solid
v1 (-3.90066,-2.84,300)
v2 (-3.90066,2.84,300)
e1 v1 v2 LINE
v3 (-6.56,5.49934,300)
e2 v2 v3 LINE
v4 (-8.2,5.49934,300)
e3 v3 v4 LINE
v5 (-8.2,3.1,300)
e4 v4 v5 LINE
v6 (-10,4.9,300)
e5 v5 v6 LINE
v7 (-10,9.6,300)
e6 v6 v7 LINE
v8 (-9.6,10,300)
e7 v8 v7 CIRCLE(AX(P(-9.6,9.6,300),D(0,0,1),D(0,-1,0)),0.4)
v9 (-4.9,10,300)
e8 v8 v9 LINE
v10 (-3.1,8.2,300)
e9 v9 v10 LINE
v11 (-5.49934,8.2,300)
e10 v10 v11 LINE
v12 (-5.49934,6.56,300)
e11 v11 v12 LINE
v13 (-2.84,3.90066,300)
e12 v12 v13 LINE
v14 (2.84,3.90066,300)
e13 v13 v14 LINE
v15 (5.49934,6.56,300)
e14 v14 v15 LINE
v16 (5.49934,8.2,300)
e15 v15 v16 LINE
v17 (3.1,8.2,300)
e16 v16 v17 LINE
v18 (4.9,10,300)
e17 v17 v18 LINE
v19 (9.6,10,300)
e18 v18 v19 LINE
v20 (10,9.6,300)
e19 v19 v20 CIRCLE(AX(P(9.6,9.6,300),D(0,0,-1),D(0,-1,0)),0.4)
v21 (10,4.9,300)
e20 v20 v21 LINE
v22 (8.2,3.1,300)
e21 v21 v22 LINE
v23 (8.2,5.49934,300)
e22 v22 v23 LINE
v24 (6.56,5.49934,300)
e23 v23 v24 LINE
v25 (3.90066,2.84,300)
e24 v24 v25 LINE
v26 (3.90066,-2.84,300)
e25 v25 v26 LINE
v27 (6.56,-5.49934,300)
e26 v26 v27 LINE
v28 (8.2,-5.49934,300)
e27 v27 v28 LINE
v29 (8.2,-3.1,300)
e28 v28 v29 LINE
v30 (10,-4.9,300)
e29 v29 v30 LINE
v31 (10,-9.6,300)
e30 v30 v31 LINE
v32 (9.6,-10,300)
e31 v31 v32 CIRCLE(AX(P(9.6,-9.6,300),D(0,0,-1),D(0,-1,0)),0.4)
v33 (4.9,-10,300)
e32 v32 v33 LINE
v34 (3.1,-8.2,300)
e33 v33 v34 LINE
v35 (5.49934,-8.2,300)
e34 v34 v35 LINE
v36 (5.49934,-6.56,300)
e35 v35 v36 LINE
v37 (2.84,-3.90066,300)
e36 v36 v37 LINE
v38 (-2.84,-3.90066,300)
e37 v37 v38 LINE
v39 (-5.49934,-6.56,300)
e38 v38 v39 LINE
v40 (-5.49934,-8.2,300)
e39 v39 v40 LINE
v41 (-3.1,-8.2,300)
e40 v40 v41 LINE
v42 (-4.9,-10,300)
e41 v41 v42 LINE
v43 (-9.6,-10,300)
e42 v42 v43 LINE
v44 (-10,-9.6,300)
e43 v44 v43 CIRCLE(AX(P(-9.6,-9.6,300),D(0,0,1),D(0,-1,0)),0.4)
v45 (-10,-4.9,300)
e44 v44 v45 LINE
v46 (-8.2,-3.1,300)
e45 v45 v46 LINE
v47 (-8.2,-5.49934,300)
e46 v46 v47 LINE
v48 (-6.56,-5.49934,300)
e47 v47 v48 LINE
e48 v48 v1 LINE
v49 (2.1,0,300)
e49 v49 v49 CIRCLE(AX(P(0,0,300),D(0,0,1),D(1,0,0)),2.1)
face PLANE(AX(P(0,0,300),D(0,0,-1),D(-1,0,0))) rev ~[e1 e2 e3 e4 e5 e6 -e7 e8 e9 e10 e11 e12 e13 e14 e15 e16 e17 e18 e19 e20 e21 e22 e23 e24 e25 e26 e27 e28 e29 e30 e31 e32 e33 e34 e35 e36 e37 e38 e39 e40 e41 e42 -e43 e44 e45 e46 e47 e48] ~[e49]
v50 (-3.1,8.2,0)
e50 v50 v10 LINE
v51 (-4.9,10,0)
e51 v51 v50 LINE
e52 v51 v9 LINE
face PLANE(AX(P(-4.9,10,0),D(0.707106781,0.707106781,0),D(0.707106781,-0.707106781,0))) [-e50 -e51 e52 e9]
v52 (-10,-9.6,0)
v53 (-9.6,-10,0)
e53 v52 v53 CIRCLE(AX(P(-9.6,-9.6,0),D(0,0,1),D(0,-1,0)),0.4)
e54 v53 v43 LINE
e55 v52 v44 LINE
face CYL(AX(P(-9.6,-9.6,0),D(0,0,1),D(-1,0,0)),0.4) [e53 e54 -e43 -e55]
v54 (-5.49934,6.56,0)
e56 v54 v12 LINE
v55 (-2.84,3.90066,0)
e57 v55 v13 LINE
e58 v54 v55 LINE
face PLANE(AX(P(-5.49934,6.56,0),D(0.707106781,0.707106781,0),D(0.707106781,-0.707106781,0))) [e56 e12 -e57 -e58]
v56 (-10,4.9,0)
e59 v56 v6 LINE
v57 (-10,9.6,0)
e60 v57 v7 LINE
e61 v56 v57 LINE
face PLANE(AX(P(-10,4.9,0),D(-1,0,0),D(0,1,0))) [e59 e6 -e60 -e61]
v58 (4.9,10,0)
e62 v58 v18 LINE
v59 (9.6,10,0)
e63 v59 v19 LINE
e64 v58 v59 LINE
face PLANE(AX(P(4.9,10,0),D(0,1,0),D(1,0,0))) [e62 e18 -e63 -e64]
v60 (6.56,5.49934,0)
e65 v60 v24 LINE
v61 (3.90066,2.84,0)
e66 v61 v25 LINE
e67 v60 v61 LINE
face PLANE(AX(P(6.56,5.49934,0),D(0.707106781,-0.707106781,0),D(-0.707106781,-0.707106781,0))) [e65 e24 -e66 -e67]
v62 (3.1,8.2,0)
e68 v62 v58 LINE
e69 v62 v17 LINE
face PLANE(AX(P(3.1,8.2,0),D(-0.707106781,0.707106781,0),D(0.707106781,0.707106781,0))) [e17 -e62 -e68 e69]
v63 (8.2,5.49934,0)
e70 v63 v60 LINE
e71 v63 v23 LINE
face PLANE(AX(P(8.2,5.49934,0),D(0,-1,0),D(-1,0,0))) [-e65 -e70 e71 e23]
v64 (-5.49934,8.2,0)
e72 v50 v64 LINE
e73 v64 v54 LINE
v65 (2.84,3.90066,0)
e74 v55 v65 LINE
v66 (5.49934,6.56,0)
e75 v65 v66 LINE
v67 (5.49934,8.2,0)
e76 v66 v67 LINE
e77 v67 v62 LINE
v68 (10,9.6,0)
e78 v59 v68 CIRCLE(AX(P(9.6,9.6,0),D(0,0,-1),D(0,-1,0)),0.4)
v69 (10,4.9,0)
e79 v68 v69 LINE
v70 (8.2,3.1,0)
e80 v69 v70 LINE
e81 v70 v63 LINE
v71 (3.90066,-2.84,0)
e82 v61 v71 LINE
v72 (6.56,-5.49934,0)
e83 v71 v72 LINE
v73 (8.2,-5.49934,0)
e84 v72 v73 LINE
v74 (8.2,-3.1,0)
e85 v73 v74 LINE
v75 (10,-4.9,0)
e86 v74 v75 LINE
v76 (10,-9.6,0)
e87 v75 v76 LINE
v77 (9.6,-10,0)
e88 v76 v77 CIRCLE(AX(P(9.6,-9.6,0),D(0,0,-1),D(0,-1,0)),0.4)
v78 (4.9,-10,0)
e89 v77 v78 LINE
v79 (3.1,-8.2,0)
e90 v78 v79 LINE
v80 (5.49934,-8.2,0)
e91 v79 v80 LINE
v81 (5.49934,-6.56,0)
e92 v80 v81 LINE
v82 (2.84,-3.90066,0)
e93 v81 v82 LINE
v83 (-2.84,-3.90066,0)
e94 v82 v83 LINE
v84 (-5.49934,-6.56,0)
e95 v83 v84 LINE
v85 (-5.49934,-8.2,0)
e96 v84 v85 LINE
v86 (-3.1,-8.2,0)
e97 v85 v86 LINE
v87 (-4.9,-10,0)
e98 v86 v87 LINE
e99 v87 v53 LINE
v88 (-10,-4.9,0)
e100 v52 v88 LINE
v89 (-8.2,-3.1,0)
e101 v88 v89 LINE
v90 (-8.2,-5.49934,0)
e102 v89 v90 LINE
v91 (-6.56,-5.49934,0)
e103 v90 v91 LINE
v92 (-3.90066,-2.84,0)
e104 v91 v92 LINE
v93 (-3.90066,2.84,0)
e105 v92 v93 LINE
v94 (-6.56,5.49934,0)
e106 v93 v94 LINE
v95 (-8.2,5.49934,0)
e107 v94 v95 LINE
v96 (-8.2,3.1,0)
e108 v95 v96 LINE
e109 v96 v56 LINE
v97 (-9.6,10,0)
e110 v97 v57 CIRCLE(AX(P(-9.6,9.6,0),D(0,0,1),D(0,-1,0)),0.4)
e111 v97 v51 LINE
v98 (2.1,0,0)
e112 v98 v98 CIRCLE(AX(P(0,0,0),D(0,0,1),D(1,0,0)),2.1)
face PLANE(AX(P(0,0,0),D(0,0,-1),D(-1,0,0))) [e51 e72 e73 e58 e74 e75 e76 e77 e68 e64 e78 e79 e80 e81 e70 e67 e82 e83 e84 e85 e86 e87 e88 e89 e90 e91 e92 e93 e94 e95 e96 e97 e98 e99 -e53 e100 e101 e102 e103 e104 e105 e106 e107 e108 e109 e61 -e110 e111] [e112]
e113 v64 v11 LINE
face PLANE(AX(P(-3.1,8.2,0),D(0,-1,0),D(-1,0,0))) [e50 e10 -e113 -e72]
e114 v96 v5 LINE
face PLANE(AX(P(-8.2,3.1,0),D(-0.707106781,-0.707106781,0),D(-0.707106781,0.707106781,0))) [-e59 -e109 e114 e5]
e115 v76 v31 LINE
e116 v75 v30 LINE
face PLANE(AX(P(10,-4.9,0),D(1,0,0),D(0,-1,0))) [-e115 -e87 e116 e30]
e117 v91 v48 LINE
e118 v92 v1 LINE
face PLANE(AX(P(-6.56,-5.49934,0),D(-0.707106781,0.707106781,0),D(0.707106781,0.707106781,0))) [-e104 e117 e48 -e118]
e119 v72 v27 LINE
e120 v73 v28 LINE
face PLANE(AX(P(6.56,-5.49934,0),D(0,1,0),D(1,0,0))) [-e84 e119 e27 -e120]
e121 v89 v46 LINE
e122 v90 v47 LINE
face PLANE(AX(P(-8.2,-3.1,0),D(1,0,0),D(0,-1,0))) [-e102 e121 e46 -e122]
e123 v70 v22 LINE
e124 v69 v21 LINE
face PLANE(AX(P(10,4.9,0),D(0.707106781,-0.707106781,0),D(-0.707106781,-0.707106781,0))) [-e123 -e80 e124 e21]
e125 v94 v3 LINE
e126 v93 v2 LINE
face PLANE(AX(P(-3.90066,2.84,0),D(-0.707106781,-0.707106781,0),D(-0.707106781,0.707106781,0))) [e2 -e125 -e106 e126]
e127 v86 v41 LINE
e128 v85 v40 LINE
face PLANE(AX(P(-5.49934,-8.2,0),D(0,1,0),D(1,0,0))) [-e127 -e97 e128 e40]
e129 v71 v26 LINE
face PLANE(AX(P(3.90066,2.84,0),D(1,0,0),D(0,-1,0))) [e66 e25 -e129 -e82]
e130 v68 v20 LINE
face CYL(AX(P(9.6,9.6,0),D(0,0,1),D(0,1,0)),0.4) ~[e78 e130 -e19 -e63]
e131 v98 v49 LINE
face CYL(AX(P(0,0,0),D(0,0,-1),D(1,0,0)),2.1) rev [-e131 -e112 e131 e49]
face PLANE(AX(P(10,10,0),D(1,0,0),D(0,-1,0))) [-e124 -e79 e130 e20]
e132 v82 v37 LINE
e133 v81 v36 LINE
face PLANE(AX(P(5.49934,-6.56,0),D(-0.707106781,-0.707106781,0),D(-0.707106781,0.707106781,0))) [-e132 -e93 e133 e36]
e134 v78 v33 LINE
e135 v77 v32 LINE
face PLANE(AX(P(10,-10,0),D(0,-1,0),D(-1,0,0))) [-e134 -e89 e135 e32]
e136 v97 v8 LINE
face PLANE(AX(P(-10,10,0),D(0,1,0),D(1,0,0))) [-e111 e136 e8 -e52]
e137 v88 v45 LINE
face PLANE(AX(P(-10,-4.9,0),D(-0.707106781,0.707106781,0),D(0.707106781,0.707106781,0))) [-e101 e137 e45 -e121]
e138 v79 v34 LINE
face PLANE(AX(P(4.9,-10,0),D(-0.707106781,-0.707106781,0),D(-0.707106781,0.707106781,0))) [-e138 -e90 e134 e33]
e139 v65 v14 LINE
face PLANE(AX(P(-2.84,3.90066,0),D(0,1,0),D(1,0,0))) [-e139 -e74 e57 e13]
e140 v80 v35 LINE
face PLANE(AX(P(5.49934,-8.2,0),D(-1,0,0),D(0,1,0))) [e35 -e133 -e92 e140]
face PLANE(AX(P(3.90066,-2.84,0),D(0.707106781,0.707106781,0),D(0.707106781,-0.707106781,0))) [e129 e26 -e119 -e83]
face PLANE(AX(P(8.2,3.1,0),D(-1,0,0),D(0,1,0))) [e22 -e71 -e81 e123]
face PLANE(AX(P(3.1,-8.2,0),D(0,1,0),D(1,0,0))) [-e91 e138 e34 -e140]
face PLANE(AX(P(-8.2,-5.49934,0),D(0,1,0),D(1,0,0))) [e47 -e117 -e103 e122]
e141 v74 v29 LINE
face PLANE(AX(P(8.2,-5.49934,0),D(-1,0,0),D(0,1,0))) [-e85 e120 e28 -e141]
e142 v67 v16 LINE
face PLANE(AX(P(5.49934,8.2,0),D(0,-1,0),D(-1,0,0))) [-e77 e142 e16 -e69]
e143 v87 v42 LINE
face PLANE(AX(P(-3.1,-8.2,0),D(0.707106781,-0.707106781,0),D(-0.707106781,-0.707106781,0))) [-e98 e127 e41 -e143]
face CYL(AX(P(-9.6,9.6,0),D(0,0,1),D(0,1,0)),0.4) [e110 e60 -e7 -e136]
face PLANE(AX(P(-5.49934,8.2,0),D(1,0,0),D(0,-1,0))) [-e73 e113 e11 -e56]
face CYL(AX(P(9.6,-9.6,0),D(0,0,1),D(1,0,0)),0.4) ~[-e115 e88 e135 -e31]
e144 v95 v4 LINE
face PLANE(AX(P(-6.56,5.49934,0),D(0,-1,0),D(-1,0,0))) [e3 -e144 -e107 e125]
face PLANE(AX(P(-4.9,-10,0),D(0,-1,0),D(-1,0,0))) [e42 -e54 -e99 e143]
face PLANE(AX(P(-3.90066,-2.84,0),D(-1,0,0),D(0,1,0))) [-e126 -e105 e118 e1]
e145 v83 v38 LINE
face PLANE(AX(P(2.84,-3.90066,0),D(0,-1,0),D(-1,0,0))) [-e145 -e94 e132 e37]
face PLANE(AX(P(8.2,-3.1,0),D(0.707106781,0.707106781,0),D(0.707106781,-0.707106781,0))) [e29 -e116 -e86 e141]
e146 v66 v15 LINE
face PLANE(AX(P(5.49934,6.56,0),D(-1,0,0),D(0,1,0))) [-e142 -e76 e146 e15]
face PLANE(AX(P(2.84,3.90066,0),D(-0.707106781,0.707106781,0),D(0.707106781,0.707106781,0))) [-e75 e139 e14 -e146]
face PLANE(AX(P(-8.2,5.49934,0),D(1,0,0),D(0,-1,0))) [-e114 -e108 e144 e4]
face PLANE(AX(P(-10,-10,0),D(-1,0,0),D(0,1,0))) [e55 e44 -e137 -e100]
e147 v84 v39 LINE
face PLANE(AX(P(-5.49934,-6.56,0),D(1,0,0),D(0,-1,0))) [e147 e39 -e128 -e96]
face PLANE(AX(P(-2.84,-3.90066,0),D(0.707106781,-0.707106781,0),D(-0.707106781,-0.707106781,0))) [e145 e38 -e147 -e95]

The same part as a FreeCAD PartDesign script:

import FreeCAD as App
import Part
import Sketcher
from FreeCAD import Vector


def edges_at(feature, points):
    """Names of the edges that pass closest to the given points."""
    edges = feature.Shape.Edges
    near = lambda p: min(range(len(edges)), key=lambda i: edges[i].distToShape(Part.Vertex(*p))[0])
    return sorted({f"Edge{near(p) + 1}" for p in points})


def add_polygon(sketch, points):
    """Adds a closed chain of lines whose ends are joined by coincident constraints."""
    first, n = sketch.GeometryCount, len(points)
    for a, b in zip(points, points[1:] + points[:1]):
        sketch.addGeometry(Part.LineSegment(App.Vector(*a, 0), App.Vector(*b, 0)), False)
    for i in range(n):
        sketch.addConstraint(Sketcher.Constraint("Coincident", first + i, 2, first + (i + 1) % n, 1))

doc = App.newDocument("Part")
body = doc.addObject("PartDesign::Body", "Body")

# Sketch on XY plane
sketch1 = body.newObject("Sketcher::SketchObject", "Sketch")
sketch1.AttachmentSupport = (doc.getObject("XY_Plane"), [""])
sketch1.MapMode = "FlatFace"
add_polygon(sketch1, [(2.84, 3.90066), (-2.84, 3.90066), (-5.49934, 6.56), (-5.49934, 8.2), (-3.1, 8.2), (-4.9, 10), (-10, 10), (-10, 4.9), (-8.2, 3.1), (-8.2, 5.49934), (-6.56, 5.49934), (-3.90066, 2.84), (-3.90066, -2.84), (-6.56, -5.49934), (-8.2, -5.49934), (-8.2, -3.1), (-10, -4.9), (-10, -10), (-4.9, -10), (-3.1, -8.2), (-5.49934, -8.2), (-5.49934, -6.56), (-2.84, -3.90066), (2.84, -3.90066), (5.49934, -6.56), (5.49934, -8.2), (3.1, -8.2), (4.9, -10), (10, -10), (10, -4.9), (8.2, -3.1), (8.2, -5.49934), (6.56, -5.49934), (3.90066, -2.84), (3.90066, 2.84), (6.56, 5.49934), (8.2, 5.49934), (8.2, 3.1), (10, 4.9), (10, 10), (4.9, 10), (3.1, 8.2), (5.49934, 8.2), (5.49934, 6.56)])  # lines 0-43
sketch1.addGeometry(Part.Circle(Vector(0, 0, 0), Vector(0, 0, 1), 2.1), False)  # 44
sketch1.addConstraint([
    Sketcher.Constraint("Horizontal", 0),
    Sketcher.Constraint("Vertical", 2),
    Sketcher.Constraint("Horizontal", 3),
    Sketcher.Constraint("Horizontal", 5),
    Sketcher.Constraint("Vertical", 6),
    Sketcher.Constraint("Vertical", 8),
    Sketcher.Constraint("Horizontal", 9),
    Sketcher.Constraint("Vertical", 11),
    Sketcher.Constraint("Horizontal", 13),
    Sketcher.Constraint("Vertical", 14),
    Sketcher.Constraint("Vertical", 16),
    Sketcher.Constraint("Horizontal", 17),
    Sketcher.Constraint("Horizontal", 19),
    Sketcher.Constraint("Vertical", 20),
    Sketcher.Constraint("Horizontal", 22),
    Sketcher.Constraint("Vertical", 24),
    Sketcher.Constraint("Horizontal", 25),
    Sketcher.Constraint("Horizontal", 27),
    Sketcher.Constraint("Vertical", 28),
    Sketcher.Constraint("Vertical", 30),
    Sketcher.Constraint("Horizontal", 31),
    Sketcher.Constraint("Vertical", 33),
    Sketcher.Constraint("Horizontal", 35),
    Sketcher.Constraint("Vertical", 36),
    Sketcher.Constraint("Vertical", 38),
    Sketcher.Constraint("Horizontal", 39),
    Sketcher.Constraint("Horizontal", 41),
    Sketcher.Constraint("Vertical", 42),
    Sketcher.Constraint("Coincident", 44, 3, -1, 1),
    Sketcher.Constraint("Symmetric", 0, 2, 22, 2, -1, 1),
    Sketcher.Constraint("Symmetric", 1, 2, 23, 2, -1, 1),
    Sketcher.Constraint("Symmetric", 3, 2, 25, 2, -1, 1),
    Sketcher.Constraint("Symmetric", 4, 2, 26, 2, -1, 1),
    Sketcher.Constraint("Symmetric", 6, 2, 28, 2, -1, 1),
    Sketcher.Constraint("Symmetric", 7, 2, 29, 2, -1, 1),
    Sketcher.Constraint("Symmetric", 9, 2, 31, 2, -1, 1),
    Sketcher.Constraint("Symmetric", 10, 2, 32, 2, -1, 1),
    Sketcher.Constraint("Symmetric", 12, 2, 34, 2, -1, 1),
    Sketcher.Constraint("Symmetric", 14, 2, 36, 2, -1, 1),
    Sketcher.Constraint("Symmetric", 15, 2, 37, 2, -1, 1),
    Sketcher.Constraint("Symmetric", 17, 2, 39, 2, -1, 1),
    Sketcher.Constraint("Symmetric", 18, 2, 40, 2, -1, 1),
    Sketcher.Constraint("Symmetric", 20, 2, 42, 2, -1, 1),
    Sketcher.Constraint("Symmetric", 20, 2, 23, 2, -2),
    Sketcher.Constraint("Symmetric", 18, 2, 25, 2, -2),
    Sketcher.Constraint("Symmetric", 17, 2, 26, 2, -2),
    Sketcher.Constraint("Symmetric", 15, 2, 28, 2, -2),
    Sketcher.Constraint("Symmetric", 14, 2, 29, 2, -2),
    Sketcher.Constraint("Symmetric", 12, 2, 31, 2, -2),
    Sketcher.Constraint("Parallel", 1, 4),
    Sketcher.Constraint("Parallel", 4, 7),
    Sketcher.Constraint("Parallel", 7, 10),
    Sketcher.Constraint("Perpendicular", 10, 12),
    Sketcher.Constraint("Parallel", 12, 15),
    Sketcher.Constraint("Parallel", 18, 21),
    Sketcher.Constraint("Perpendicular", 32, 34),
    Sketcher.Constraint("Parallel", 40, 43),
    Sketcher.Constraint("Equal", 35, 2),
    Sketcher.Constraint("Equal", 39, 6),
    Sketcher.Constraint("Equal", 41, 8),
    Sketcher.Constraint("Equal", 22, 11),
    Sketcher.Constraint("Equal", 4, 7),
    Sketcher.Constraint("Equal", 1, 10),
    Sketcher.Constraint("Diameter", 44, 4.2),
    Sketcher.Constraint("DistanceX", 5, 2, 5, 1, 5.1),
    Sketcher.Constraint("DistanceY", -1, 1, 4, 2, 10.0),
    Sketcher.Constraint("DistanceY", 15, 2, 7, 2, 8.0),
    Sketcher.Constraint("DistanceX", 0, 2, 0, 1, 5.68),
    Sketcher.Constraint("DistanceX", 9, 1, 9, 2, 1.64),
    Sketcher.Constraint("DistanceX", 3, 1, 3, 2, 2.39934),
])
pad1 = body.newObject("PartDesign::Pad", "Pad")
pad1.Profile = sketch1
pad1.Length = 300
doc.recompute()

fillet = body.newObject("PartDesign::Fillet", "Fillet")
fillet.Base = (pad1, edges_at(pad1, [
    (10, 10, 150),
    (-10, 10, 150),
    (10, -10, 150),
    (-10, -10, 150),
]))
fillet.Radius = 0.4

doc.recompute()
